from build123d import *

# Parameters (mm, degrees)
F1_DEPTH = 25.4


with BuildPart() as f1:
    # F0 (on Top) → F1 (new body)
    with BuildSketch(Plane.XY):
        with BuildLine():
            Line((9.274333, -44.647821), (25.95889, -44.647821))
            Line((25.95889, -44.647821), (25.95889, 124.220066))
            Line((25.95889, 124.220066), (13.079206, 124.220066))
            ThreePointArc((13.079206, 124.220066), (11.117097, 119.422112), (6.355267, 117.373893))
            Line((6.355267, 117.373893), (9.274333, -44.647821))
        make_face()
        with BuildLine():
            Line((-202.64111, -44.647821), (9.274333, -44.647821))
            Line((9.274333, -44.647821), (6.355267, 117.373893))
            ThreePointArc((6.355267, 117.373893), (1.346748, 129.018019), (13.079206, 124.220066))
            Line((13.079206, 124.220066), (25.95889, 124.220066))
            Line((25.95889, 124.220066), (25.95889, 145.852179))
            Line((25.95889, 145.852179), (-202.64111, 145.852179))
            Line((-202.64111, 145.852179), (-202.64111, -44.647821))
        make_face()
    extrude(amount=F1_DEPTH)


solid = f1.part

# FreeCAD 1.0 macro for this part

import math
import FreeCAD as App
import Part
import Sketcher
from FreeCAD import Vector
Q = App.Units.Quantity

doc = App.newDocument("Part")
body = doc.addObject("PartDesign::Body", "Body")

# Sketch on XY plane
sketch1 = doc.addObject("Sketcher::SketchObject", "Sketch")
body.addObject(sketch1)
sketch1.AttachmentSupport = (doc.XY_Plane, [""])
sketch1.MapMode = "FlatFace"
sketch1.addGeometry([
    Part.LineSegment(Vector(26, -45, 0), Vector(26, 146, 0)),  # 0
    Part.LineSegment(Vector(26, 146, 0), Vector(-203, 146, 0)),  # 1
    Part.LineSegment(Vector(-203, 146, 0), Vector(-203, -45, 0)),  # 2
    Part.LineSegment(Vector(-203, -45, 0), Vector(26, -45, 0)),  # 3
    Part.ArcOfCircle(Part.Circle(Vector(6, 124, 0), Vector(0, 0, 1), 7), math.radians(-89), math.radians(0)),  # 4
    Part.ArcOfCircle(Part.Circle(Vector(6, 124, 0), Vector(0, 0, 1), 7), math.radians(0), math.radians(271)),  # 5
], False)
sketch1.addConstraint([
    Sketcher.Constraint("Coincident", 0, 2, 1, 1),
    Sketcher.Constraint("Coincident", 1, 2, 2, 1),
    Sketcher.Constraint("Coincident", 2, 2, 3, 1),
    Sketcher.Constraint("Coincident", 3, 2, 0, 1),
    Sketcher.Constraint("Tangent", 4, 1, 5, 2),
    Sketcher.Constraint("Coincident", 5, 1, 4, 2),
    Sketcher.Constraint("Vertical", 0),
    Sketcher.Constraint("Horizontal", 1),
    Sketcher.Constraint("Vertical", 2),
    Sketcher.Constraint("Horizontal", 3),
    Sketcher.Constraint("Horizontal", 4, 3, 5, 1),
    Sketcher.Constraint("DistanceX", 1, 2, 1, 1, Q("9 in")),
    Sketcher.Constraint("DistanceY", 0, 1, 0, 2, Q("7.5 in")),
    Sketcher.Constraint("Radius", 4, Q("6.847284 mm")),
    Sketcher.Constraint("DistanceX", -1, 1, 4, 3, Q("6.231922 mm")),
    Sketcher.Constraint("DistanceX", -1, 1, 0, 2, Q("25.95889 mm")),
    Sketcher.Constraint("DistanceY", -1, 1, 0, 2, Q("145.852179 mm")),
    Sketcher.Constraint("DistanceX", 4, 1, 5, 1, Q("6.723939 mm")),
    Sketcher.Constraint("DistanceY", -1, 1, 4, 3, Q("124.220066 mm")),
])
pad1 = doc.addObject("PartDesign::Pad", "Pad")
body.addObject(pad1)
pad1.Profile = sketch1
pad1.Length = Q("1 in")

doc.recompute()
